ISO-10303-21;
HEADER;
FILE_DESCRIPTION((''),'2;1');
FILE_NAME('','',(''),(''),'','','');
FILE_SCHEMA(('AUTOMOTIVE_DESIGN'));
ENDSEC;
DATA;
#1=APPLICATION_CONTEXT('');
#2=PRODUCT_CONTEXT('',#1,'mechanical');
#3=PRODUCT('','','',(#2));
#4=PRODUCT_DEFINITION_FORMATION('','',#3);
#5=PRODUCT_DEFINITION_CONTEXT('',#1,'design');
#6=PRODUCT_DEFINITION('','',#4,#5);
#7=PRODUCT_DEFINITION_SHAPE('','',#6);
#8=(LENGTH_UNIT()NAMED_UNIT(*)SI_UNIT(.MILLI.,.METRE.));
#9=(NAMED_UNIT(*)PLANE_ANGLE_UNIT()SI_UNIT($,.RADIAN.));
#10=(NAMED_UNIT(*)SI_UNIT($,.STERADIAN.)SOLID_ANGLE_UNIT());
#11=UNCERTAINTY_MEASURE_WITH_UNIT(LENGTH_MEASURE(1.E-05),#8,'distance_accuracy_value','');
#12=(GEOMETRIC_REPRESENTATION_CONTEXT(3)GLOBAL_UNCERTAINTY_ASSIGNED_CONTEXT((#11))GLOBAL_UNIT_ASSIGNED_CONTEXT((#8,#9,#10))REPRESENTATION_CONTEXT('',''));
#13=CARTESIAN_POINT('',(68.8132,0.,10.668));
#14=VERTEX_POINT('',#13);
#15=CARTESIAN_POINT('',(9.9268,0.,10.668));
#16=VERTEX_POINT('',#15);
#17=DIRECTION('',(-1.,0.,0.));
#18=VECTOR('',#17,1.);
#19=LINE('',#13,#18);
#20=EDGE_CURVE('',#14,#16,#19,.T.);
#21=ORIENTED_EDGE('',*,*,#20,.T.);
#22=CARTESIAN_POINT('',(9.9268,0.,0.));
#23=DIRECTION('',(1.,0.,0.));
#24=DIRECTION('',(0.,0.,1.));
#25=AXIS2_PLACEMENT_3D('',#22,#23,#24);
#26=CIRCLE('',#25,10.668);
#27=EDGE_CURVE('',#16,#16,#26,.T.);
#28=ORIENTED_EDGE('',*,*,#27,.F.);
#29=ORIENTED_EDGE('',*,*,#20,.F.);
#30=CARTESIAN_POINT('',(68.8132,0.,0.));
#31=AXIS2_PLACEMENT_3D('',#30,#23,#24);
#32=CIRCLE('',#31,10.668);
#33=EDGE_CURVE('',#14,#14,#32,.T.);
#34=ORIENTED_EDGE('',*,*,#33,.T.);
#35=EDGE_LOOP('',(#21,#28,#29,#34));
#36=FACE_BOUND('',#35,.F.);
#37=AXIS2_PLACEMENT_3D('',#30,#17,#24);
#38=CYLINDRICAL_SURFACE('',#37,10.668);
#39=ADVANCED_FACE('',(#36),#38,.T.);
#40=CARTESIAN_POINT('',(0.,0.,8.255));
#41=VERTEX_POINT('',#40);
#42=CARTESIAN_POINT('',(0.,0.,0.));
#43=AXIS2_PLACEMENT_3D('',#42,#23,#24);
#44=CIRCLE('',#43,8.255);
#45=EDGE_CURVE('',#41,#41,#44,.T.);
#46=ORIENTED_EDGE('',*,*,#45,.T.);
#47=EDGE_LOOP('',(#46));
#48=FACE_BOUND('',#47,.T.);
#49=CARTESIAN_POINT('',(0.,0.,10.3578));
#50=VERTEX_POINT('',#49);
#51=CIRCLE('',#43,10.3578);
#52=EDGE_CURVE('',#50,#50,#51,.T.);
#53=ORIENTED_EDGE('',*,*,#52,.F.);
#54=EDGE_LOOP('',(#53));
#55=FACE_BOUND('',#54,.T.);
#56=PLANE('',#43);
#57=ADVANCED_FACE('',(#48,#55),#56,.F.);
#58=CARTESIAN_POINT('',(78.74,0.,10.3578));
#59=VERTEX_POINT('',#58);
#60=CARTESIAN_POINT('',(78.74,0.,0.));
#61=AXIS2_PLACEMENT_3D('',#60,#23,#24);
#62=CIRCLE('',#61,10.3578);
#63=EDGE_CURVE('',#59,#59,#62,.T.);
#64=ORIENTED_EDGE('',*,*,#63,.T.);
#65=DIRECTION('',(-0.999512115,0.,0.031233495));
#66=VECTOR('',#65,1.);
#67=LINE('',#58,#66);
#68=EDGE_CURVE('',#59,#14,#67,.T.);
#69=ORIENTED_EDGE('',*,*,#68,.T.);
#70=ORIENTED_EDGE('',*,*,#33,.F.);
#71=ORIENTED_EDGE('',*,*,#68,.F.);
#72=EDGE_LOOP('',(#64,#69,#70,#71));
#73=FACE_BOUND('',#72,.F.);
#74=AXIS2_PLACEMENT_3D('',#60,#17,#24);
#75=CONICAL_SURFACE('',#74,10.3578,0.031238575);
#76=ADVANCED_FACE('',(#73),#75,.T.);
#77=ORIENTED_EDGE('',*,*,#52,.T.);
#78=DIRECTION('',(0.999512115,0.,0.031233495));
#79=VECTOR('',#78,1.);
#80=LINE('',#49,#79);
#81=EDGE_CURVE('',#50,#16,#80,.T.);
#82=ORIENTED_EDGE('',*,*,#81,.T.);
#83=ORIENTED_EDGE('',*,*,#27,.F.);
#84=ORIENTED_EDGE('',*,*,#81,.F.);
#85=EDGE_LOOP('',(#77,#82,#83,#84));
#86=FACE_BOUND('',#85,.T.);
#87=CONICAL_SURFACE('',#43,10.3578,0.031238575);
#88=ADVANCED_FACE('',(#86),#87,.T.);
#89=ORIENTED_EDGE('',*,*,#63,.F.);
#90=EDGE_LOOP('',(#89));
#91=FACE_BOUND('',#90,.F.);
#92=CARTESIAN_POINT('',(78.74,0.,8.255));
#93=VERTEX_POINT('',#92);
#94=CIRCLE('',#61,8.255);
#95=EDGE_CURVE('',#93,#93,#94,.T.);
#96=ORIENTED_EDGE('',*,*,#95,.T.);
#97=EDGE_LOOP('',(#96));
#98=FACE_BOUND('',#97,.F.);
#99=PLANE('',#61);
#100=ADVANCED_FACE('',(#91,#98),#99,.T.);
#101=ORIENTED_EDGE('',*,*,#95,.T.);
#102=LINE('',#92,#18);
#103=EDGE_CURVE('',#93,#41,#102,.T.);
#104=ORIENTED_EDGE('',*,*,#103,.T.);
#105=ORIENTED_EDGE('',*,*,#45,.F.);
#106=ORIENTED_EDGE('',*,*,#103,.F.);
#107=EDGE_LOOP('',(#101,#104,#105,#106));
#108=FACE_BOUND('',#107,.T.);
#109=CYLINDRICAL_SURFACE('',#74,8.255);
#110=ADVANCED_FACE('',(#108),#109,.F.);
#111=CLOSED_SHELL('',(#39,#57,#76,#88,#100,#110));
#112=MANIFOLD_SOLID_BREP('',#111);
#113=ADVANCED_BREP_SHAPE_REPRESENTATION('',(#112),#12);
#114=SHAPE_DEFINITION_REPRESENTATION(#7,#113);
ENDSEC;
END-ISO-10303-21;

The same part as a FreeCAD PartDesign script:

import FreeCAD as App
import Part
import Sketcher

V = App.Vector
Q = App.Units.Quantity


def add_polygon(sketch, points):
    """Adds a closed chain of lines whose ends are joined by coincident constraints."""
    first, n = sketch.GeometryCount, len(points)
    for a, b in zip(points, points[1:] + points[:1]):
        sketch.addGeometry(Part.LineSegment(App.Vector(*a, 0), App.Vector(*b, 0)), False)
    for i in range(n):
        sketch.addConstraint(Sketcher.Constraint("Coincident", first + i, 2, first + (i + 1) % n, 1))

doc = App.newDocument("Part")
body = doc.addObject("PartDesign::Body", "Body")

# Sketch on XZ plane
sketch1 = body.newObject("Sketcher::SketchObject", "Sketch")
sketch1.AttachmentSupport = (doc.getObject("XZ_Plane"), [""])
sketch1.MapMode = "FlatFace"
add_polygon(sketch1, [(78.74, 10.3578), (78.74, 8.255), (0, 8.255), (0, 10.3578), (9.9268, 10.668), (68.8132, 10.668)])  # lines 0-5
sketch1.addConstraint(Sketcher.Constraint("Vertical", 0))
sketch1.addConstraint(Sketcher.Constraint("Horizontal", 1))
sketch1.addConstraint(Sketcher.Constraint("Vertical", 2))
sketch1.addConstraint(Sketcher.Constraint("Horizontal", 4))
sketch1.addConstraint(Sketcher.Constraint("PointOnObject", 1, 2, -2))
sketch1.addConstraint(Sketcher.Constraint("Horizontal", 2, 2, 5, 2))
sketch1.addConstraint(Sketcher.Constraint("Equal", 3, 5))
sketch1.addConstraint(Sketcher.Constraint("DistanceX", 1, 2, 1, 1, Q("3.1 in")))
sketch1.addConstraint(Sketcher.Constraint("Angle", 3, Q("1.7898 deg")))
sketch1.addConstraint(Sketcher.Constraint("DistanceY", -1, 1, 3, 2, Q("0.42 in")))
sketch1.addConstraint(Sketcher.Constraint("Distance", 3, Q("0.391 in")))
sketch1.addConstraint(Sketcher.Constraint("DistanceY", -1, 1, 0, 2, Q("0.325 in")))
revolution = body.newObject("PartDesign::Revolution", "Revolution")
revolution.Profile = sketch1
revolution.ReferenceAxis = (sketch1, ["H_Axis"])
revolution.Angle = 360

doc.recompute()
